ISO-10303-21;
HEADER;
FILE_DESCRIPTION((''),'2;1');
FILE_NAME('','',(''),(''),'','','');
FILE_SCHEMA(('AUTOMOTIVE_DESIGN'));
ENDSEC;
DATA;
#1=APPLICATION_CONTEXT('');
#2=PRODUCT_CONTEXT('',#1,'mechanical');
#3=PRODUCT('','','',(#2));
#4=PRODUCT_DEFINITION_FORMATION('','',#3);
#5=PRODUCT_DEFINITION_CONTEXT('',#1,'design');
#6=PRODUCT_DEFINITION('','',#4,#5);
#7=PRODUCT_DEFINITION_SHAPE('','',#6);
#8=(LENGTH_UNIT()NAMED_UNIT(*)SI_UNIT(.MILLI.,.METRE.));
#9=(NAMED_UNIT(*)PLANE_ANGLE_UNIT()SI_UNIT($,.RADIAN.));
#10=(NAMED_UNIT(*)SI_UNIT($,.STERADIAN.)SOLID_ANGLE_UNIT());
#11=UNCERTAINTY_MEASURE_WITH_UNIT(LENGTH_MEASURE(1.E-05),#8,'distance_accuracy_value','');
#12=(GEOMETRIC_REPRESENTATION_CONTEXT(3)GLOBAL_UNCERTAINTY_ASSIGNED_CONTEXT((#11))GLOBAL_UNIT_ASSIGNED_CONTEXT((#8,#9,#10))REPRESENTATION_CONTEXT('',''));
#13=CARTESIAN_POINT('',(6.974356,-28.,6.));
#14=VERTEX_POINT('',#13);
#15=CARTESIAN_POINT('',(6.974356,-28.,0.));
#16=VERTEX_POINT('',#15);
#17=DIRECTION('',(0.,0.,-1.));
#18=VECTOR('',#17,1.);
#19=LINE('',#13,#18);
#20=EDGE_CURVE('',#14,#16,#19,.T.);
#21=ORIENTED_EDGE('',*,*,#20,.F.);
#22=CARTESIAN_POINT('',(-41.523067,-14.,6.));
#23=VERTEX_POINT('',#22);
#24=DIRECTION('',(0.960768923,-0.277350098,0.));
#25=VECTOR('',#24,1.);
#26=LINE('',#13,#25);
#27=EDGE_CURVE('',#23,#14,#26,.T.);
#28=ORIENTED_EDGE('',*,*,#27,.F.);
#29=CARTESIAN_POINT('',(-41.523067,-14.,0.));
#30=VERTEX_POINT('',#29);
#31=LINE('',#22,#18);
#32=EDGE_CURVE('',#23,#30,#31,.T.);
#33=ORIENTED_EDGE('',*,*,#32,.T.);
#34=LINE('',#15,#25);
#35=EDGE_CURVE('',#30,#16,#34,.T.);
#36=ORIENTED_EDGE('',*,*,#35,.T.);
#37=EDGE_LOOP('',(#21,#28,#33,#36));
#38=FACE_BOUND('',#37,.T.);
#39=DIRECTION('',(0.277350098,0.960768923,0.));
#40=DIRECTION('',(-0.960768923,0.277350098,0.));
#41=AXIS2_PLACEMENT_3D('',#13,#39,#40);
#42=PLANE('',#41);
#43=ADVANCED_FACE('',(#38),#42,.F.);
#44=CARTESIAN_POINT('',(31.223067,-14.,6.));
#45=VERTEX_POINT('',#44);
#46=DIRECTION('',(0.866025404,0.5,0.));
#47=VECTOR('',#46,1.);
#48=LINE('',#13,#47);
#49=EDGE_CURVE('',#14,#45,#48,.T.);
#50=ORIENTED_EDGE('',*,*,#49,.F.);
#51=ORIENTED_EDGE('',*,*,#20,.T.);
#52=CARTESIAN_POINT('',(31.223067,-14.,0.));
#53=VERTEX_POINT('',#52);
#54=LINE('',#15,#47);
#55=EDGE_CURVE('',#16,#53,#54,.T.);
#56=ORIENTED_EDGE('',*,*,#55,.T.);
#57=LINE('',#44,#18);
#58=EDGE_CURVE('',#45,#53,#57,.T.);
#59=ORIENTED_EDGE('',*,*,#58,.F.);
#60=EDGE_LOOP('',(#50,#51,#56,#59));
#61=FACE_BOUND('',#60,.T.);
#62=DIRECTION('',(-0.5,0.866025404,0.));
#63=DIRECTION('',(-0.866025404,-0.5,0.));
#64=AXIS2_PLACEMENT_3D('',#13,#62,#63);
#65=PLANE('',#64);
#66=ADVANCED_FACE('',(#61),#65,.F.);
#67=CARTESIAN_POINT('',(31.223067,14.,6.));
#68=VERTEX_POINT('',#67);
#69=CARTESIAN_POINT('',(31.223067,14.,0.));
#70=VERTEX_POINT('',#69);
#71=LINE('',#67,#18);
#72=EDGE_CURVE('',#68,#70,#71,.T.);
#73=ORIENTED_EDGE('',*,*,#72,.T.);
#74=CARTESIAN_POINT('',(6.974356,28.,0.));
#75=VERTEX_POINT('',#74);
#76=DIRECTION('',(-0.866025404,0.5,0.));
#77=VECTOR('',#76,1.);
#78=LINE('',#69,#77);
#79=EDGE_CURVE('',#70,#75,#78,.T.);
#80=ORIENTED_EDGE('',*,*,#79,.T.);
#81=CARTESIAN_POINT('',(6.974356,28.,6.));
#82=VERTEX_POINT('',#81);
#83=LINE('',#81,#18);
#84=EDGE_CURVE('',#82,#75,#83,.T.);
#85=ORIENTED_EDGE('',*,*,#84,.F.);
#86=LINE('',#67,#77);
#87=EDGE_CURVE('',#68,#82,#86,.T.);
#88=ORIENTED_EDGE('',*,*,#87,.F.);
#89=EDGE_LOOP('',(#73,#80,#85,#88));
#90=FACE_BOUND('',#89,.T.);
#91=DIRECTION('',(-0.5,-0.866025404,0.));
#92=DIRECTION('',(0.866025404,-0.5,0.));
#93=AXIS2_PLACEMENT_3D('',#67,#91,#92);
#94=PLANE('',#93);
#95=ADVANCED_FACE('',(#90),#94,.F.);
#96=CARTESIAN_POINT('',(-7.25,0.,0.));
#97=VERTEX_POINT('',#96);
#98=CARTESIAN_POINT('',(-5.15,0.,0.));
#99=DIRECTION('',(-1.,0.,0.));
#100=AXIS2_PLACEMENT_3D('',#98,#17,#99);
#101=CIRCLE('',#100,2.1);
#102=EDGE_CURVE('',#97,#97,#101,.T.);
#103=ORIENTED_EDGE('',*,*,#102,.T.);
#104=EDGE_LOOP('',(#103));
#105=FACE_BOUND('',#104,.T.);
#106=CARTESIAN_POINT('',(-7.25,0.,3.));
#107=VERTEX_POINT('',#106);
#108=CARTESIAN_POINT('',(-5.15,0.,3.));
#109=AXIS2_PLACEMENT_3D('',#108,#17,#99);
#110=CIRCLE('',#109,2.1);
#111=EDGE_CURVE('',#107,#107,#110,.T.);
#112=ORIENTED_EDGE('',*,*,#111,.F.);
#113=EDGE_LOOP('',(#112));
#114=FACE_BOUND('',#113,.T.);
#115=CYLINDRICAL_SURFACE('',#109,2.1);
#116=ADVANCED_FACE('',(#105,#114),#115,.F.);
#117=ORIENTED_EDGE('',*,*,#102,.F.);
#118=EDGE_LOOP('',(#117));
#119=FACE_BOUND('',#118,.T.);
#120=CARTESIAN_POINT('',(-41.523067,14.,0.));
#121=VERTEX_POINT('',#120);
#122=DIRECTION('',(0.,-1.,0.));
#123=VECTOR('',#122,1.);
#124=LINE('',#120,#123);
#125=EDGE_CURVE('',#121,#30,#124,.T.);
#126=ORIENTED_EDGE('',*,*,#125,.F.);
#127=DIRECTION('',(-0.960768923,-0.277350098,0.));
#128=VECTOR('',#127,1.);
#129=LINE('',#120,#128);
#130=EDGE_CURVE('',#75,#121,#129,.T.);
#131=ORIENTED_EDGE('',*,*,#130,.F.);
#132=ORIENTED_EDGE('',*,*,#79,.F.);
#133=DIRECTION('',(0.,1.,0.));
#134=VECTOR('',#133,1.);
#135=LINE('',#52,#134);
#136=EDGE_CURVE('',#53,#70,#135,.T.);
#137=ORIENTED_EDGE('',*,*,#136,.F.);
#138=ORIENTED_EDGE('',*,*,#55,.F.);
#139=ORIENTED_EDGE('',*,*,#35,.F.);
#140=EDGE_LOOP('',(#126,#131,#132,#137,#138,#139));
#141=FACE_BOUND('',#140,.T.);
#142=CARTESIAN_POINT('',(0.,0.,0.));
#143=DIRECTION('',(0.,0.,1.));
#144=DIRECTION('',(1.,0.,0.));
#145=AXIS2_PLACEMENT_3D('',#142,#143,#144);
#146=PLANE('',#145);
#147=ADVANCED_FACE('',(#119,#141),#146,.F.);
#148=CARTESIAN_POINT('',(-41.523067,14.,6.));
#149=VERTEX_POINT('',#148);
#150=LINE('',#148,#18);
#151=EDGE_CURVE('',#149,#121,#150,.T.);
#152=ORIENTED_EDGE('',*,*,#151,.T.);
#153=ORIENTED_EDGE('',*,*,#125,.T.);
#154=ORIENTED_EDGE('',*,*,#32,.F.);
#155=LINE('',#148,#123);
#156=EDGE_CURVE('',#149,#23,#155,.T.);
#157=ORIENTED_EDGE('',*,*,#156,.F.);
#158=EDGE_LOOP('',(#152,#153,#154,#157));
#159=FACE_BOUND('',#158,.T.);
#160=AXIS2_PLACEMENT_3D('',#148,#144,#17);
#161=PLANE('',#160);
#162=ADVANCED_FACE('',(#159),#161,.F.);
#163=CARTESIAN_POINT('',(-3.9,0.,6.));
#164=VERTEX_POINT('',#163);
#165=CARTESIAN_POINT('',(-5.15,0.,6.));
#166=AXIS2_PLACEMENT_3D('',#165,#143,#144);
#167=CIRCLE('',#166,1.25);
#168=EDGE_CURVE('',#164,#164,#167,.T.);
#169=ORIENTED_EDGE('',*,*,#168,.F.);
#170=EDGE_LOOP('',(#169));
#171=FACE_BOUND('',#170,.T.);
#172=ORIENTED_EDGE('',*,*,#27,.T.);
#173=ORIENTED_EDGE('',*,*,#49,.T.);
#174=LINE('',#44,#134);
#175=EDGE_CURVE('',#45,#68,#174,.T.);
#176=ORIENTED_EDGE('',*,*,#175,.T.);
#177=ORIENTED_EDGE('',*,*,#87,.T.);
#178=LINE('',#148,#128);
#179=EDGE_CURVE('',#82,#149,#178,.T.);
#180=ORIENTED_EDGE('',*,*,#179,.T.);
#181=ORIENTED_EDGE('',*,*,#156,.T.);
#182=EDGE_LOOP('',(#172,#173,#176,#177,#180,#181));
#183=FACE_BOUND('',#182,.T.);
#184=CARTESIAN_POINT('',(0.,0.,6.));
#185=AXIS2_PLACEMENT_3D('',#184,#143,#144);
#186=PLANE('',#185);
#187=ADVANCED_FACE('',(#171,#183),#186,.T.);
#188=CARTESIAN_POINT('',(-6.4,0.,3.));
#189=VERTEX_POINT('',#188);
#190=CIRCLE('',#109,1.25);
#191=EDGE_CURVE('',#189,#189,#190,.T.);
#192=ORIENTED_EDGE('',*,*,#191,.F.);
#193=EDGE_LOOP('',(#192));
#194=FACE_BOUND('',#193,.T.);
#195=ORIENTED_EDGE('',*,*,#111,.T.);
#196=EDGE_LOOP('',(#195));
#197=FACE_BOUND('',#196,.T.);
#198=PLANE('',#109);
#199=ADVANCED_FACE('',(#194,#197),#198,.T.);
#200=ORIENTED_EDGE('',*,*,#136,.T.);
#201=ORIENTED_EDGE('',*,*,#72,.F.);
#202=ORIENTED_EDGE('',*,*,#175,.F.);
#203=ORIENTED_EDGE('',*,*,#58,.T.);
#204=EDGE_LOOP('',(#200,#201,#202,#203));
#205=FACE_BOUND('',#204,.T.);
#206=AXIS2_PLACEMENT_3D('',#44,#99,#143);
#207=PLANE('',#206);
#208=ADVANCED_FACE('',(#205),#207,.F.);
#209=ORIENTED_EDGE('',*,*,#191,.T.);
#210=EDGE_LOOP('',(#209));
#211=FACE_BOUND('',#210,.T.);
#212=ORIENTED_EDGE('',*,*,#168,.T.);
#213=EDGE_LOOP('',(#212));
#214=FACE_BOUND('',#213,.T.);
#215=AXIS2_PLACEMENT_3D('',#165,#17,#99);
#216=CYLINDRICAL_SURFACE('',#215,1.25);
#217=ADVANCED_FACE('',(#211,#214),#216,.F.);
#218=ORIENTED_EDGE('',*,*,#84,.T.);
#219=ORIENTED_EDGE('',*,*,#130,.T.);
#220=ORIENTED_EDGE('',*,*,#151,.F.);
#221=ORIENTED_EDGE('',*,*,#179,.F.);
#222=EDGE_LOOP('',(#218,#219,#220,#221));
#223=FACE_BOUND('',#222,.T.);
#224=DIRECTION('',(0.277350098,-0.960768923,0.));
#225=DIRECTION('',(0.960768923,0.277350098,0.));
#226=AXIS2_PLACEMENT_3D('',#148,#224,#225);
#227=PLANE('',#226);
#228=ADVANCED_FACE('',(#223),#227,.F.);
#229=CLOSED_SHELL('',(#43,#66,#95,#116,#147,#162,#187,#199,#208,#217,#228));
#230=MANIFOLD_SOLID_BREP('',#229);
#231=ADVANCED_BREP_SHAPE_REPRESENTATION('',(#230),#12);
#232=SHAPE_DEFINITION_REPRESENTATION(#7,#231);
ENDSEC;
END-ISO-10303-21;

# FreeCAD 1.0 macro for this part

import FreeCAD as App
import Part
import Sketcher
from FreeCAD import Vector
Q = App.Units.Quantity


def add_polygon(sketch, points):
    """Adds a closed chain of lines whose ends are joined by coincident constraints."""
    first, n = sketch.GeometryCount, len(points)
    for a, b in zip(points, points[1:] + points[:1]):
        sketch.addGeometry(Part.LineSegment(App.Vector(*a, 0), App.Vector(*b, 0)), False)
    for i in range(n):
        sketch.addConstraint(Sketcher.Constraint("Coincident", first + i, 2, first + (i + 1) % n, 1))

doc = App.newDocument("Part")
body = doc.addObject("PartDesign::Body", "Body")

# Sketch on XY plane
sketch1 = body.newObject("Sketcher::SketchObject", "Sketch")
sketch1.AttachmentSupport = (doc.getObject("XY_Plane"), [""])
sketch1.MapMode = "FlatFace"
add_polygon(sketch1, [(-41.523067, 14), (-41.523067, -14), (6.974356, -28), (31.223067, -14), (31.223067, 14), (6.974356, 28)])  # lines 0-5
sketch1.addGeometry(Part.Circle(Vector(-5.15, 0, 0), Vector(0, 0, 1), 1.25), False)  # 6
sketch1.addConstraint([
    Sketcher.Constraint("Vertical", 0),
    Sketcher.Constraint("Vertical", 3),
    Sketcher.Constraint("Symmetric", 1, 2, 4, 2, -1),
    Sketcher.Constraint("PointOnObject", 6, 3, -1),
    Sketcher.Constraint("Horizontal", 0, 2, 2, 2),
    Sketcher.Constraint("Horizontal", 3, 2, 5, 2),
    Sketcher.Constraint("Equal", 2, 4),
    Sketcher.Constraint("Diameter", 6, Q("2.5 mm")),
    Sketcher.Constraint("DistanceY", 0, 2, 0, 1, Q("28 mm")),
    Sketcher.Constraint("Angle", 2, Q("30 deg")),
    Sketcher.Constraint("Distance", 2, Q("28 mm")),
    Sketcher.Constraint("DistanceX", 6, 3, -1, 1, Q("5.15 mm")),
    Sketcher.Constraint("Distance", 1, Q("50.477718 mm")),
    Sketcher.Constraint("DistanceX", 0, 2, -1, 1, Q("41.523067 mm")),
])
pad1 = body.newObject("PartDesign::Pad", "Pad")
pad1.Profile = sketch1
pad1.Length = 6

# Sketch on XY plane
sketch2 = body.newObject("Sketcher::SketchObject", "Sketch001")
sketch2.AttachmentSupport = (doc.getObject("XY_Plane"), [""])
sketch2.MapMode = "FlatFace"
sketch2.addGeometry(Part.Circle(Vector(-5.15, 0, 0), Vector(0, 0, 1), 2.1), False)
sketch2.addConstraint([
    Sketcher.Constraint("PointOnObject", 0, 3, -1),
    Sketcher.Constraint("Diameter", 0, Q("4.2 mm")),
    Sketcher.Constraint("DistanceX", 0, 3, -1, 1, Q("5.15 mm")),
])
pocket1 = body.newObject("PartDesign::Pocket", "Pocket")
pocket1.Profile = sketch2
pocket1.Length = 3
pocket1.Reversed = True

doc.recompute()
